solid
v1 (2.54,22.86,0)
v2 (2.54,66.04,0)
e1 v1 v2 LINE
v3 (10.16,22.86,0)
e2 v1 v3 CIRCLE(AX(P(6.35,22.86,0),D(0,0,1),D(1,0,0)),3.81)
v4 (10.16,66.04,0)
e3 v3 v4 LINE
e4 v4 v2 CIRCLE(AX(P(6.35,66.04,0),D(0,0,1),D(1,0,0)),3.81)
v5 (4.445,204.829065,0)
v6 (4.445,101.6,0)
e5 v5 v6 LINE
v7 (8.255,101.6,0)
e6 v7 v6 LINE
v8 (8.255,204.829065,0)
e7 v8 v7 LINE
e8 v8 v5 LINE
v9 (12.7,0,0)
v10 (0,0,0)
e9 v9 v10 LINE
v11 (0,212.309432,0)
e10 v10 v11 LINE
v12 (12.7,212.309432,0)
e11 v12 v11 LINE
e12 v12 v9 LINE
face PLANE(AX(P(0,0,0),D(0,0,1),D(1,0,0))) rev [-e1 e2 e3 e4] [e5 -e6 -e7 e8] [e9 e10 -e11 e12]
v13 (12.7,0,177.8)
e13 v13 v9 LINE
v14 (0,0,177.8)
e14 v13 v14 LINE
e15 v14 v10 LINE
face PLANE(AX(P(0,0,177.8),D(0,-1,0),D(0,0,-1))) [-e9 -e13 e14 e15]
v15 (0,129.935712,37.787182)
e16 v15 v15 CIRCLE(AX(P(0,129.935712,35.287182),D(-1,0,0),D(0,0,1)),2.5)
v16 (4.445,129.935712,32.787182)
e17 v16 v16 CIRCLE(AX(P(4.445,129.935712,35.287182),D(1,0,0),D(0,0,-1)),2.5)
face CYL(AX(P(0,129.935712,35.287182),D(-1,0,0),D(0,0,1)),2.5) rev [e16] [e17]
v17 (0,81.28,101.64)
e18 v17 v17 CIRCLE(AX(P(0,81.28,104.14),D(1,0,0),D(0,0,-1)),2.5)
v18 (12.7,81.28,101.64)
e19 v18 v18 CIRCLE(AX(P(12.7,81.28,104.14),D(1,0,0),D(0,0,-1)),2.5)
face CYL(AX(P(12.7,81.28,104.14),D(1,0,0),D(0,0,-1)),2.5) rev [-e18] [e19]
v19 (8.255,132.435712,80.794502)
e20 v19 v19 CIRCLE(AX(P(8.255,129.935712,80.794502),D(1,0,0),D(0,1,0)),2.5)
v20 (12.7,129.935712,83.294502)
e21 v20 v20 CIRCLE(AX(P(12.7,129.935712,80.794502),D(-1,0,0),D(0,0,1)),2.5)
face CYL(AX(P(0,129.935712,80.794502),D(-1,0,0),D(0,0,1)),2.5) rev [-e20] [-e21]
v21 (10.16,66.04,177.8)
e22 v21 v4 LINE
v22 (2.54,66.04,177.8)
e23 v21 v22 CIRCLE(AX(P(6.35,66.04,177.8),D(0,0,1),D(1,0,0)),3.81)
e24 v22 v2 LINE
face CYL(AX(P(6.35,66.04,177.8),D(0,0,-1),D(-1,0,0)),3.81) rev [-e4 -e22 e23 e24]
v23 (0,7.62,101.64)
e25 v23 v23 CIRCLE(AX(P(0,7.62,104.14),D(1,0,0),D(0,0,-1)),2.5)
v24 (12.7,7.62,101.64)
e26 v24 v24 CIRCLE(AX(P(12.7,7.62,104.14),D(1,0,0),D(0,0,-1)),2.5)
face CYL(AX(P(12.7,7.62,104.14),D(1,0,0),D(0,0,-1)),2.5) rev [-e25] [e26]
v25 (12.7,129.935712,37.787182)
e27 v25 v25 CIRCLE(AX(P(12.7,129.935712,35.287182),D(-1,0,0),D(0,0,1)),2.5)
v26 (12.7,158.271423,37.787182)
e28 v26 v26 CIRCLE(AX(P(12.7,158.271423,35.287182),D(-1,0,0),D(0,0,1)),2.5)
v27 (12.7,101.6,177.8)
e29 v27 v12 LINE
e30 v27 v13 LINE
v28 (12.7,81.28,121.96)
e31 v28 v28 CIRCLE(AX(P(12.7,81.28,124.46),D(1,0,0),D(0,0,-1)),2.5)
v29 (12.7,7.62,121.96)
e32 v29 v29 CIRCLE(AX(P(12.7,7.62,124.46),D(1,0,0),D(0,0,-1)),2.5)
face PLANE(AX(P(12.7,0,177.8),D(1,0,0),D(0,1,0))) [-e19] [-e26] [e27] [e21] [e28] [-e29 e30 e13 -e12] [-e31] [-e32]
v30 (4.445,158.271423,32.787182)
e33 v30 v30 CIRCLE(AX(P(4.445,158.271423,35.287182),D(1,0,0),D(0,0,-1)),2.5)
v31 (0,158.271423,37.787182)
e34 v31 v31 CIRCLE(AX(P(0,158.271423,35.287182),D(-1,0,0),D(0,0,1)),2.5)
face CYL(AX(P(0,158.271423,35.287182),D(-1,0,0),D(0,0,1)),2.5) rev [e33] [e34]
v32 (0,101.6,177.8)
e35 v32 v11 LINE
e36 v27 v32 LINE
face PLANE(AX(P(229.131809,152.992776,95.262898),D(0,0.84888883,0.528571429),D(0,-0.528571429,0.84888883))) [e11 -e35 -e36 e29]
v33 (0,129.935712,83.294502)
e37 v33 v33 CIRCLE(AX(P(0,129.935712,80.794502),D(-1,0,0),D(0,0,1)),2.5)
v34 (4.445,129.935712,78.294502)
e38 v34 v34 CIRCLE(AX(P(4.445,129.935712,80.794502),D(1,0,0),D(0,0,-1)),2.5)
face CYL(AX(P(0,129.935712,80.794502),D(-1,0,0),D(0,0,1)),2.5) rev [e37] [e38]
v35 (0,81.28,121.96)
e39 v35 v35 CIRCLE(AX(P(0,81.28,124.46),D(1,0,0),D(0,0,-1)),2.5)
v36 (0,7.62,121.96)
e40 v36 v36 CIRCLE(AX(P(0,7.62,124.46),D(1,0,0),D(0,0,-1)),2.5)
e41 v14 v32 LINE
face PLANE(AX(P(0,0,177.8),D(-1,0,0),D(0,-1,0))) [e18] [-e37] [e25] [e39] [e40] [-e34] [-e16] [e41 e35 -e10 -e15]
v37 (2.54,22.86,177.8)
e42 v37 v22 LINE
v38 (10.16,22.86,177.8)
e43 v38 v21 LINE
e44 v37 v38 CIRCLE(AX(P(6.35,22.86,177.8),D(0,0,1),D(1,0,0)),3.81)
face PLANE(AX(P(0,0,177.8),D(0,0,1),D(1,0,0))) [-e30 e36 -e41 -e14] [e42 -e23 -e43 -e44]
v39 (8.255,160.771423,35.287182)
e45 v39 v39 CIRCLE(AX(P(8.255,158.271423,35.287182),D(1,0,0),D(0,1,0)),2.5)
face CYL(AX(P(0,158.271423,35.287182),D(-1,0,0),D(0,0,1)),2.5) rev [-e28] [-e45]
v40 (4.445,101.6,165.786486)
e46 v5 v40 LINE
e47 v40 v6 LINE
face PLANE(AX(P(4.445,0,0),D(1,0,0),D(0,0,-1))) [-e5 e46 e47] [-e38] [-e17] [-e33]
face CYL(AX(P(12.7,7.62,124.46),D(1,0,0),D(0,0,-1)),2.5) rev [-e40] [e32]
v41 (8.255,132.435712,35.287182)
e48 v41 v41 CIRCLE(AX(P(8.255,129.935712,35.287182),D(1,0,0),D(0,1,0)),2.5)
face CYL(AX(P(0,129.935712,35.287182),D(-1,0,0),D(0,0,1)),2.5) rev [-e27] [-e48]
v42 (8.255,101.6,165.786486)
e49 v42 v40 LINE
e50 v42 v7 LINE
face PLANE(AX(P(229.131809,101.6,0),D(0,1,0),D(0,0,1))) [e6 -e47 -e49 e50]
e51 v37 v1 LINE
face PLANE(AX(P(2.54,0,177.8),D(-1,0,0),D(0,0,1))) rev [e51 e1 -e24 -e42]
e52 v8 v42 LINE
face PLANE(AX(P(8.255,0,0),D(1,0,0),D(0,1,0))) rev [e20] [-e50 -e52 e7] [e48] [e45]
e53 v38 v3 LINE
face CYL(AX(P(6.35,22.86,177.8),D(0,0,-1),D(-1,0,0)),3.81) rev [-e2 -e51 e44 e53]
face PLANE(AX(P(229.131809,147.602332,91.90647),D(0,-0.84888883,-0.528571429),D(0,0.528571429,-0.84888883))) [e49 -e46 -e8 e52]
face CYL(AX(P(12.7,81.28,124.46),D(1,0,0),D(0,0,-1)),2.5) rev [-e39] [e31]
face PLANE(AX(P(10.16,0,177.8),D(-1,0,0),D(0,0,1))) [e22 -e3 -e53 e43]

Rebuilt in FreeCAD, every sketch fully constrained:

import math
import FreeCAD as App
import Part
import Sketcher
Q = App.Units.Quantity


def add_polygon(sketch, points):
    """Adds a closed chain of lines whose ends are joined by coincident constraints."""
    first, n = sketch.GeometryCount, len(points)
    for a, b in zip(points, points[1:] + points[:1]):
        sketch.addGeometry(Part.LineSegment(App.Vector(*a, 0), App.Vector(*b, 0)), False)
    for i in range(n):
        sketch.addConstraint(Sketcher.Constraint("Coincident", first + i, 2, first + (i + 1) % n, 1))

doc = App.newDocument("Part")
body = doc.addObject("PartDesign::Body", "Body")

# Sketch on XY plane
sketch1 = body.newObject("Sketcher::SketchObject", "Sketch")
sketch1.AttachmentSupport = (doc.getObject("XY_Plane"), [""])
sketch1.MapMode = "FlatFace"
add_polygon(sketch1, [(0, 88.9), (0, 0), (12.7, 0), (12.7, 88.9)])  # lines 0-3
sketch1.addGeometry(Part.ArcOfCircle(Part.Circle(App.Vector(6.4, 66, 0), App.Vector(0, 0, 1), 3.8), math.radians(90), math.radians(180)), False)  # 4
sketch1.addGeometry(Part.ArcOfCircle(Part.Circle(App.Vector(6.3, 66, 0), App.Vector(0, 0, 1), 3.8), math.radians(0), math.radians(90)), False)  # 5
sketch1.addGeometry(Part.LineSegment(App.Vector(10.2, 66, 0), App.Vector(10.2, 22.9, 0)), False)  # 6
sketch1.addGeometry(Part.ArcOfCircle(Part.Circle(App.Vector(6.3, 22.9, 0), App.Vector(0, 0, 1), 3.8), math.radians(-90), math.radians(0)), False)  # 7
sketch1.addGeometry(Part.ArcOfCircle(Part.Circle(App.Vector(6.4, 22.9, 0), App.Vector(0, 0, 1), 3.8), math.radians(-180), math.radians(-90)), False)  # 8
sketch1.addGeometry(Part.LineSegment(App.Vector(2.5, 22.9, 0), App.Vector(2.5, 66, 0)), False)  # 9
sketch1.addConstraint(Sketcher.Constraint("Tangent", 4, 1, 5, 2))
sketch1.addConstraint(Sketcher.Constraint("Tangent", 5, 1, 6, 1))
sketch1.addConstraint(Sketcher.Constraint("Tangent", 6, 2, 7, 2))
sketch1.addConstraint(Sketcher.Constraint("Tangent", 7, 1, 8, 2))
sketch1.addConstraint(Sketcher.Constraint("Tangent", 8, 1, 9, 1))
sketch1.addConstraint(Sketcher.Constraint("Tangent", 9, 2, 4, 2))
sketch1.addConstraint(Sketcher.Constraint("Vertical", 0))
sketch1.addConstraint(Sketcher.Constraint("Horizontal", 1))
sketch1.addConstraint(Sketcher.Constraint("Vertical", 2))
sketch1.addConstraint(Sketcher.Constraint("Horizontal", 3))
sketch1.addConstraint(Sketcher.Constraint("Vertical", 6))
sketch1.addConstraint(Sketcher.Constraint("Vertical", 9))
sketch1.addConstraint(Sketcher.Constraint("Coincident", 0, 2, -1, 1))
sketch1.addConstraint(Sketcher.Constraint("Equal", 4, 5))
sketch1.addConstraint(Sketcher.Constraint("Equal", 5, 7))
sketch1.addConstraint(Sketcher.Constraint("Vertical", 8, 3, 4, 1))
sketch1.addConstraint(Sketcher.Constraint("Vertical", 4, 1, 7, 1))
sketch1.addConstraint(Sketcher.Constraint("Radius", 4, Q("0.15 in")))
sketch1.addConstraint(Sketcher.Constraint("DistanceX", 1, 1, 1, 2, Q("0.5 in")))
sketch1.addConstraint(Sketcher.Constraint("DistanceY", 0, 2, 0, 1, Q("3.5 in")))
sketch1.addConstraint(Sketcher.Constraint("DistanceY", 6, 2, 6, 1, Q("1.7 in")))
sketch1.addConstraint(Sketcher.Constraint("DistanceY", -1, 1, 4, 3, Q("2.6 in")))
sketch1.addConstraint(Sketcher.Constraint("DistanceX", -1, 1, 5, 1, Q("0.4 in")))
pad1 = body.newObject("PartDesign::Pad", "Pad")
pad1.Profile = sketch1
pad1.Length = Q("7 in")

# Sketch on YZ plane
sketch2 = body.newObject("Sketcher::SketchObject", "Sketch001")
sketch2.AttachmentSupport = (doc.getObject("YZ_Plane"), [""])
sketch2.MapMode = "FlatFace"
add_polygon(sketch2, [(102, 178), (89, 178), (89, 0), (102, 0), (102, 166), (149, 89), (176, 46), (205, 0), (212, 0), (181, 50)])  # lines 0-9
sketch2.addConstraint(Sketcher.Constraint("Horizontal", 0))
sketch2.addConstraint(Sketcher.Constraint("Vertical", 1))
sketch2.addConstraint(Sketcher.Constraint("Horizontal", 2))
sketch2.addConstraint(Sketcher.Constraint("Vertical", 3))
sketch2.addConstraint(Sketcher.Constraint("Horizontal", 7))
sketch2.addConstraint(Sketcher.Constraint("PointOnObject", 1, 2, -1))
sketch2.addConstraint(Sketcher.Constraint("PointOnObject", 6, 2, -1))
sketch2.addConstraint(Sketcher.Constraint("Parallel", 4, 5))
sketch2.addConstraint(Sketcher.Constraint("Parallel", 5, 6))
sketch2.addConstraint(Sketcher.Constraint("Parallel", 6, 8))
sketch2.addConstraint(Sketcher.Constraint("Parallel", 8, 9))
sketch2.addConstraint(Sketcher.Constraint("Vertical", 3, 2, 9, 2))
sketch2.addConstraint(Sketcher.Constraint("DistanceY", 1, 2, 1, 1, Q("7 in")))
sketch2.addConstraint(Sketcher.Constraint("DistanceX", 0, 2, 0, 1, Q("0.5 in")))
sketch2.addConstraint(Sketcher.Constraint("DistanceX", -1, 1, 2, 2, Q("4 in")))
sketch2.addConstraint(Sketcher.Constraint("DistanceY", -1, 1, 4, 2, Q("88.9047 mm")))
sketch2.addConstraint(Sketcher.Constraint("Distance", 5, Q("50.166741 mm")))
sketch2.addConstraint(Sketcher.Constraint("DistanceX", 7, 1, 7, 2, Q("7.480367 mm")))
sketch2.addConstraint(Sketcher.Constraint("DistanceY", 3, 1, 3, 2, Q("165.786486 mm")))
sketch2.addConstraint(Sketcher.Constraint("DistanceY", 5, 2, 8, 2, Q("3.356429 mm")))
pad2 = body.newObject("PartDesign::Pad", "Pad001")
pad2.Profile = sketch2
pad2.Length = Q("0.5 in")

# Sketch on YZ plane
sketch3 = body.newObject("Sketcher::SketchObject", "Sketch002")
sketch3.AttachmentSupport = (doc.getObject("YZ_Plane"), [""])
sketch3.MapMode = "FlatFace"
sketch3.AttachmentOffset = App.Placement(App.Vector(0, 0, 0.5 * 25.4), App.Rotation())
add_polygon(sketch3, [(149, 89), (102, 166), (102, 0), (205, 0), (176, 46)])  # lines 0-4
sketch3.addConstraint(Sketcher.Constraint("Vertical", 1))
sketch3.addConstraint(Sketcher.Constraint("Horizontal", 2))
sketch3.addConstraint(Sketcher.Constraint("PointOnObject", 1, 2, -1))
sketch3.addConstraint(Sketcher.Constraint("Parallel", 0, 3))
sketch3.addConstraint(Sketcher.Constraint("Parallel", 3, 4))
sketch3.addConstraint(Sketcher.Constraint("DistanceX", -1, 1, 0, 2, Q("4 in")))
sketch3.addConstraint(Sketcher.Constraint("DistanceY", -1, 1, 4, 2, Q("88.9047 mm")))
sketch3.addConstraint(Sketcher.Constraint("Distance", 4, Q("50.166741 mm")))
sketch3.addConstraint(Sketcher.Constraint("DistanceX", 2, 1, 2, 2, Q("103.229065 mm")))
sketch3.addConstraint(Sketcher.Constraint("DistanceY", 1, 2, 1, 1, Q("165.786486 mm")))
pad3 = body.newObject("PartDesign::Pad", "Pad002")
pad3.Profile = sketch3
pad3.Length = Q("0.175 in")
pad3.Reversed = True

# Sketch on YZ plane
sketch4 = body.newObject("Sketcher::SketchObject", "Sketch003")
sketch4.AttachmentSupport = (doc.getObject("YZ_Plane"), [""])
sketch4.MapMode = "FlatFace"
add_polygon(sketch4, [(149, 89), (102, 166), (102, 0), (205, 0), (176, 46)])  # lines 0-4
sketch4.addConstraint(Sketcher.Constraint("Vertical", 1))
sketch4.addConstraint(Sketcher.Constraint("Horizontal", 2))
sketch4.addConstraint(Sketcher.Constraint("PointOnObject", 1, 2, -1))
sketch4.addConstraint(Sketcher.Constraint("Parallel", 0, 3))
sketch4.addConstraint(Sketcher.Constraint("Parallel", 3, 4))
sketch4.addConstraint(Sketcher.Constraint("DistanceX", -1, 1, 0, 2, Q("4 in")))
sketch4.addConstraint(Sketcher.Constraint("DistanceY", -1, 1, 4, 2, Q("88.9047 mm")))
sketch4.addConstraint(Sketcher.Constraint("Distance", 4, Q("50.166741 mm")))
sketch4.addConstraint(Sketcher.Constraint("DistanceX", 2, 1, 2, 2, Q("103.229065 mm")))
sketch4.addConstraint(Sketcher.Constraint("DistanceY", 1, 2, 1, 1, Q("165.786486 mm")))
pad4 = body.newObject("PartDesign::Pad", "Pad003")
pad4.Profile = sketch4
pad4.Length = Q("0.175 in")

# Sketch on YZ plane
sketch5 = body.newObject("Sketcher::SketchObject", "Sketch004")
sketch5.AttachmentSupport = (doc.getObject("YZ_Plane"), [""])
sketch5.MapMode = "FlatFace"
sketch5.AttachmentOffset = App.Placement(App.Vector(0, 0, 0.5 * 25.4), App.Rotation())
sketch5.addGeometry(Part.Circle(App.Vector(7.6, 124.5, 0), App.Vector(0, 0, 1), 2.5), False)
sketch5.addGeometry(Part.Circle(App.Vector(81.3, 104.1, 0), App.Vector(0, 0, 1), 2.5), False)
sketch5.addGeometry(Part.Circle(App.Vector(81.3, 124.5, 0), App.Vector(0, 0, 1), 2.5), False)
sketch5.addGeometry(Part.Circle(App.Vector(7.6, 104.1, 0), App.Vector(0, 0, 1), 2.5), False)
sketch5.addConstraint(Sketcher.Constraint("Equal", 0, 1))
sketch5.addConstraint(Sketcher.Constraint("Equal", 1, 2))
sketch5.addConstraint(Sketcher.Constraint("Equal", 2, 3))
sketch5.addConstraint(Sketcher.Constraint("Horizontal", 0, 3, 2, 3))
sketch5.addConstraint(Sketcher.Constraint("Horizontal", 1, 3, 3, 3))
sketch5.addConstraint(Sketcher.Constraint("Vertical", 1, 3, 2, 3))
sketch5.addConstraint(Sketcher.Constraint("Vertical", 0, 3, 3, 3))
sketch5.addConstraint(Sketcher.Constraint("DistanceX", -1, 1, 0, 3, Q("0.3 in")))
sketch5.addConstraint(Sketcher.Constraint("DistanceY", -1, 1, 0, 3, Q("4.9 in")))
sketch5.addConstraint(Sketcher.Constraint("DistanceX", -1, 1, 1, 3, Q("3.2 in")))
sketch5.addConstraint(Sketcher.Constraint("DistanceY", -1, 1, 1, 3, Q("4.1 in")))
sketch5.addConstraint(Sketcher.Constraint("Diameter", 0, Q("5 mm")))
doc.recompute()
hole = body.newObject("PartDesign::Hole", "Hole")
hole.Profile = sketch5
hole.ThreadType = "None"
hole.Diameter = 5
hole.DepthType = "ThroughAll"

# Sketch on YZ plane
sketch6 = body.newObject("Sketcher::SketchObject", "Sketch005")
sketch6.AttachmentSupport = (doc.getObject("YZ_Plane"), [""])
sketch6.MapMode = "FlatFace"
sketch6.addGeometry(Part.Circle(App.Vector(129.9, 35.3, 0), App.Vector(0, 0, 1), 2.5), False)
sketch6.addGeometry(Part.Circle(App.Vector(129.9, 80.8, 0), App.Vector(0, 0, 1), 2.5), False)
sketch6.addGeometry(Part.Circle(App.Vector(158.3, 35.3, 0), App.Vector(0, 0, 1), 2.5), False)
sketch6.addConstraint(Sketcher.Constraint("Equal", 0, 1))
sketch6.addConstraint(Sketcher.Constraint("Equal", 1, 2))
sketch6.addConstraint(Sketcher.Constraint("Horizontal", 0, 3, 2, 3))
sketch6.addConstraint(Sketcher.Constraint("Vertical", 0, 3, 1, 3))
sketch6.addConstraint(Sketcher.Constraint("Diameter", 0, Q("5 mm")))
sketch6.addConstraint(Sketcher.Constraint("DistanceX", -1, 1, 0, 3, Q("129.935712 mm")))
sketch6.addConstraint(Sketcher.Constraint("DistanceY", 0, 3, 1, 3, Q("45.50732 mm")))
sketch6.addConstraint(Sketcher.Constraint("DistanceX", 0, 3, 2, 3, Q("28.335712 mm")))
sketch6.addConstraint(Sketcher.Constraint("DistanceY", -1, 1, 0, 3, Q("35.287182 mm")))
doc.recompute()
hole2 = body.newObject("PartDesign::Hole", "Hole001")
hole2.Profile = sketch6
hole2.ThreadType = "None"
hole2.Diameter = 5
hole2.DepthType = "ThroughAll"
hole2.Reversed = True

doc.recompute()
